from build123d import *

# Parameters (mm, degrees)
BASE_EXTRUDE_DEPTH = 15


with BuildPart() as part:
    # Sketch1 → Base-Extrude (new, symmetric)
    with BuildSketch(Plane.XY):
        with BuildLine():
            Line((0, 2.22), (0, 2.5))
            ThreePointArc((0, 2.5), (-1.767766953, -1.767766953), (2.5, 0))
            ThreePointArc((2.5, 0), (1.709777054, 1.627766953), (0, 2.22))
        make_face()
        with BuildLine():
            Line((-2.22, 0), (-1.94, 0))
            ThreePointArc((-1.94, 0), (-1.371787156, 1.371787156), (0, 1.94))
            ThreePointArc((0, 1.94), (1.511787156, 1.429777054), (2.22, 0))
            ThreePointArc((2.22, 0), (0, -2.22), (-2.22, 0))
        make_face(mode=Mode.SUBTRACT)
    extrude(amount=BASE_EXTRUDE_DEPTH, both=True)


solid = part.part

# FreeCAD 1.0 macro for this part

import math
import FreeCAD as App
import Part
import Sketcher
from FreeCAD import Vector

doc = App.newDocument("Part")
body = doc.addObject("PartDesign::Body", "Body")

# Sketch on XY plane
sketch1 = doc.addObject("Sketcher::SketchObject", "Sketch")
body.addObject(sketch1)
sketch1.AttachmentSupport = (doc.XY_Plane, [""])
sketch1.MapMode = "FlatFace"
sketch1.addGeometry(Part.LineSegment(Vector(0, 2.22, 0), Vector(0, 2.5, 0)), False)
sketch1.addGeometry(Part.ArcOfCircle(Part.Circle(Vector(0, 0, 0), Vector(0, 0, 1), 2.5), math.radians(90), math.radians(360)), False)
sketch1.addGeometry(Part.ArcOfCircle(Part.Circle(Vector(0.14, -0.14, 0), Vector(0, 0, 1), 2.36), math.radians(3), math.radians(93)), False)
sketch1.addGeometry(Part.ArcOfCircle(Part.Circle(Vector(0, 0, 0), Vector(0, 0, 1), 2.22), math.radians(180), math.radians(360)), False)
sketch1.addGeometry(Part.LineSegment(Vector(-2.22, 0, 0), Vector(-1.94, 0, 0)), False)
sketch1.addGeometry(Part.ArcOfCircle(Part.Circle(Vector(0, 0, 0), Vector(0, 0, 1), 1.94), math.radians(90), math.radians(180)), False)
sketch1.addGeometry(Part.ArcOfCircle(Part.Circle(Vector(0.14, -0.14, 0), Vector(0, 0, 1), 2.08), math.radians(4), math.radians(94)), False)
sketch1.addConstraint(Sketcher.Constraint("Coincident", 0, 2, 1, 1))
sketch1.addConstraint(Sketcher.Constraint("Coincident", 1, 2, 2, 1))
sketch1.addConstraint(Sketcher.Constraint("Coincident", 2, 2, 0, 1))
sketch1.addConstraint(Sketcher.Constraint("Coincident", 3, 1, 4, 1))
sketch1.addConstraint(Sketcher.Constraint("Coincident", 4, 2, 5, 2))
sketch1.addConstraint(Sketcher.Constraint("Coincident", 5, 1, 6, 2))
sketch1.addConstraint(Sketcher.Constraint("Coincident", 6, 1, 3, 2))
sketch1.addConstraint(Sketcher.Constraint("Vertical", 0))
sketch1.addConstraint(Sketcher.Constraint("Horizontal", 4))
sketch1.addConstraint(Sketcher.Constraint("Coincident", 1, 3, -1, 1))
sketch1.addConstraint(Sketcher.Constraint("Coincident", 3, 3, -1, 1))
sketch1.addConstraint(Sketcher.Constraint("Coincident", 5, 3, -1, 1))
sketch1.addConstraint(Sketcher.Constraint("Coincident", 6, 3, 2, 3))
sketch1.addConstraint(Sketcher.Constraint("PointOnObject", 0, 2, -2))
sketch1.addConstraint(Sketcher.Constraint("PointOnObject", 1, 2, -1))
sketch1.addConstraint(Sketcher.Constraint("PointOnObject", 3, 1, -1))
sketch1.addConstraint(Sketcher.Constraint("PointOnObject", 5, 1, -2))
sketch1.addConstraint(Sketcher.Constraint("PointOnObject", 6, 1, -1))
sketch1.addConstraint(Sketcher.Constraint("Equal", 4, 0))
sketch1.addConstraint(Sketcher.Constraint("Radius", 1, 2.5))
sketch1.addConstraint(Sketcher.Constraint("Radius", 3, 2.22))
sketch1.addConstraint(Sketcher.Constraint("Radius", 5, 1.94))
pad1 = doc.addObject("PartDesign::Pad", "Pad")
body.addObject(pad1)
pad1.Profile = sketch1
pad1.Length = 30
pad1.Midplane = True

doc.recompute()
